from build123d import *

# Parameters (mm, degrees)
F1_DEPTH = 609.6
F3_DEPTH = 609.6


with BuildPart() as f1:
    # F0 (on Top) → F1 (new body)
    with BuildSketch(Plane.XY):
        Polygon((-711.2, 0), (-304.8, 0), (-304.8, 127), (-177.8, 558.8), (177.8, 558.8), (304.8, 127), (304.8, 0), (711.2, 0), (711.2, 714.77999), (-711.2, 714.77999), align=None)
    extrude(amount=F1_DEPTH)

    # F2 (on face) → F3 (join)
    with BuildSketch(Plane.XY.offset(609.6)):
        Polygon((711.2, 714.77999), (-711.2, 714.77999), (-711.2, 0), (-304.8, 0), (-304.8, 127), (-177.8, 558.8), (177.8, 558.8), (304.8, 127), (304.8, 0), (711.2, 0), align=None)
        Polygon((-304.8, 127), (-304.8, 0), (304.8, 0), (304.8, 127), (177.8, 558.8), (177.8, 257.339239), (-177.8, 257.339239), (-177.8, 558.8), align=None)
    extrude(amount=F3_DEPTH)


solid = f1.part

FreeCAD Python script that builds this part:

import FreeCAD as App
import Part
import Sketcher

V = App.Vector
Q = App.Units.Quantity


def add_polygon(sketch, points):
    """Adds a closed chain of lines whose ends are joined by coincident constraints."""
    first, n = sketch.GeometryCount, len(points)
    for a, b in zip(points, points[1:] + points[:1]):
        sketch.addGeometry(Part.LineSegment(App.Vector(*a, 0), App.Vector(*b, 0)), False)
    for i in range(n):
        sketch.addConstraint(Sketcher.Constraint("Coincident", first + i, 2, first + (i + 1) % n, 1))

doc = App.newDocument("Part")
body = doc.addObject("PartDesign::Body", "Body")

# Sketch on XY plane
sketch1 = doc.addObject("Sketcher::SketchObject", "Sketch")
body.addObject(sketch1)
sketch1.AttachmentSupport = (doc.XY_Plane, [""])
sketch1.MapMode = "FlatFace"
add_polygon(sketch1, [(-711.2, 0), (-304.8, 0), (-304.8, 127), (-177.8, 558.8), (177.8, 558.8), (304.8, 127), (304.8, 0), (711.2, 0), (711.2, 714.77999), (-711.2, 714.77999)])  # lines 0-9
sketch1.addConstraint([
    Sketcher.Constraint("Horizontal", 0),
    Sketcher.Constraint("Vertical", 1),
    Sketcher.Constraint("Horizontal", 3),
    Sketcher.Constraint("Vertical", 5),
    Sketcher.Constraint("Horizontal", 6),
    Sketcher.Constraint("Vertical", 7),
    Sketcher.Constraint("Horizontal", 8),
    Sketcher.Constraint("Vertical", 9),
    Sketcher.Constraint("Symmetric", 0, 2, 5, 2, -1, 1),
    Sketcher.Constraint("Symmetric", 6, 2, 9, 2, -2),
    Sketcher.Constraint("Horizontal", 1, 2, 4, 2),
    Sketcher.Constraint("Equal", 2, 4),
    Sketcher.Constraint("DistanceX", 0, 1, 0, 2, Q("16 in")),
    Sketcher.Constraint("DistanceX", 3, 1, 3, 2, Q("14 in")),
    Sketcher.Constraint("DistanceX", 8, 2, 8, 1, Q("56 in")),
    Sketcher.Constraint("DistanceY", 1, 1, 1, 2, Q("5 in")),
    Sketcher.Constraint("DistanceY", -1, 1, 2, 2, Q("22 in")),
    Sketcher.Constraint("DistanceY", 7, 1, 7, 2, 714.77999),
])
pad1 = doc.addObject("PartDesign::Pad", "Pad")
body.addObject(pad1)
pad1.Profile = sketch1
pad1.Length = Q("24 in")

# Sketch on XY plane
sketch2 = doc.addObject("Sketcher::SketchObject", "Sketch001")
body.addObject(sketch2)
sketch2.AttachmentSupport = (doc.XY_Plane, [""])
sketch2.MapMode = "FlatFace"
sketch2.AttachmentOffset = App.Placement(V(0, 0, 24 * 25.4), App.Rotation())
add_polygon(sketch2, [(711.2, 714.77999), (-711.2, 714.77999), (-711.2, 0), (711.2, 0)])  # lines 0-3
add_polygon(sketch2, [(-177.8, 558.8), (177.8, 558.8), (177.8, 257.339239), (-177.8, 257.339239)])  # lines 4-7
sketch2.addConstraint([
    Sketcher.Constraint("Horizontal", 0),
    Sketcher.Constraint("Vertical", 1),
    Sketcher.Constraint("Horizontal", 2),
    Sketcher.Constraint("Vertical", 3),
    Sketcher.Constraint("Horizontal", 4),
    Sketcher.Constraint("Vertical", 5),
    Sketcher.Constraint("Horizontal", 6),
    Sketcher.Constraint("Vertical", 7),
    Sketcher.Constraint("Symmetric", 1, 2, 2, 2, -1, 1),
    Sketcher.Constraint("DistanceX", 0, 2, 0, 1, Q("56 in")),
    Sketcher.Constraint("DistanceX", 4, 1, 4, 2, Q("14 in")),
    Sketcher.Constraint("DistanceX", -1, 1, 4, 2, Q("7 in")),
    Sketcher.Constraint("DistanceY", -1, 1, 4, 2, Q("22 in")),
    Sketcher.Constraint("DistanceY", 1, 2, 1, 1, 714.77999),
    Sketcher.Constraint("DistanceY", 5, 2, 5, 1, 301.460761),
])
pad2 = doc.addObject("PartDesign::Pad", "Pad001")
body.addObject(pad2)
pad2.Profile = sketch2
pad2.Length = Q("24 in")

doc.recompute()
